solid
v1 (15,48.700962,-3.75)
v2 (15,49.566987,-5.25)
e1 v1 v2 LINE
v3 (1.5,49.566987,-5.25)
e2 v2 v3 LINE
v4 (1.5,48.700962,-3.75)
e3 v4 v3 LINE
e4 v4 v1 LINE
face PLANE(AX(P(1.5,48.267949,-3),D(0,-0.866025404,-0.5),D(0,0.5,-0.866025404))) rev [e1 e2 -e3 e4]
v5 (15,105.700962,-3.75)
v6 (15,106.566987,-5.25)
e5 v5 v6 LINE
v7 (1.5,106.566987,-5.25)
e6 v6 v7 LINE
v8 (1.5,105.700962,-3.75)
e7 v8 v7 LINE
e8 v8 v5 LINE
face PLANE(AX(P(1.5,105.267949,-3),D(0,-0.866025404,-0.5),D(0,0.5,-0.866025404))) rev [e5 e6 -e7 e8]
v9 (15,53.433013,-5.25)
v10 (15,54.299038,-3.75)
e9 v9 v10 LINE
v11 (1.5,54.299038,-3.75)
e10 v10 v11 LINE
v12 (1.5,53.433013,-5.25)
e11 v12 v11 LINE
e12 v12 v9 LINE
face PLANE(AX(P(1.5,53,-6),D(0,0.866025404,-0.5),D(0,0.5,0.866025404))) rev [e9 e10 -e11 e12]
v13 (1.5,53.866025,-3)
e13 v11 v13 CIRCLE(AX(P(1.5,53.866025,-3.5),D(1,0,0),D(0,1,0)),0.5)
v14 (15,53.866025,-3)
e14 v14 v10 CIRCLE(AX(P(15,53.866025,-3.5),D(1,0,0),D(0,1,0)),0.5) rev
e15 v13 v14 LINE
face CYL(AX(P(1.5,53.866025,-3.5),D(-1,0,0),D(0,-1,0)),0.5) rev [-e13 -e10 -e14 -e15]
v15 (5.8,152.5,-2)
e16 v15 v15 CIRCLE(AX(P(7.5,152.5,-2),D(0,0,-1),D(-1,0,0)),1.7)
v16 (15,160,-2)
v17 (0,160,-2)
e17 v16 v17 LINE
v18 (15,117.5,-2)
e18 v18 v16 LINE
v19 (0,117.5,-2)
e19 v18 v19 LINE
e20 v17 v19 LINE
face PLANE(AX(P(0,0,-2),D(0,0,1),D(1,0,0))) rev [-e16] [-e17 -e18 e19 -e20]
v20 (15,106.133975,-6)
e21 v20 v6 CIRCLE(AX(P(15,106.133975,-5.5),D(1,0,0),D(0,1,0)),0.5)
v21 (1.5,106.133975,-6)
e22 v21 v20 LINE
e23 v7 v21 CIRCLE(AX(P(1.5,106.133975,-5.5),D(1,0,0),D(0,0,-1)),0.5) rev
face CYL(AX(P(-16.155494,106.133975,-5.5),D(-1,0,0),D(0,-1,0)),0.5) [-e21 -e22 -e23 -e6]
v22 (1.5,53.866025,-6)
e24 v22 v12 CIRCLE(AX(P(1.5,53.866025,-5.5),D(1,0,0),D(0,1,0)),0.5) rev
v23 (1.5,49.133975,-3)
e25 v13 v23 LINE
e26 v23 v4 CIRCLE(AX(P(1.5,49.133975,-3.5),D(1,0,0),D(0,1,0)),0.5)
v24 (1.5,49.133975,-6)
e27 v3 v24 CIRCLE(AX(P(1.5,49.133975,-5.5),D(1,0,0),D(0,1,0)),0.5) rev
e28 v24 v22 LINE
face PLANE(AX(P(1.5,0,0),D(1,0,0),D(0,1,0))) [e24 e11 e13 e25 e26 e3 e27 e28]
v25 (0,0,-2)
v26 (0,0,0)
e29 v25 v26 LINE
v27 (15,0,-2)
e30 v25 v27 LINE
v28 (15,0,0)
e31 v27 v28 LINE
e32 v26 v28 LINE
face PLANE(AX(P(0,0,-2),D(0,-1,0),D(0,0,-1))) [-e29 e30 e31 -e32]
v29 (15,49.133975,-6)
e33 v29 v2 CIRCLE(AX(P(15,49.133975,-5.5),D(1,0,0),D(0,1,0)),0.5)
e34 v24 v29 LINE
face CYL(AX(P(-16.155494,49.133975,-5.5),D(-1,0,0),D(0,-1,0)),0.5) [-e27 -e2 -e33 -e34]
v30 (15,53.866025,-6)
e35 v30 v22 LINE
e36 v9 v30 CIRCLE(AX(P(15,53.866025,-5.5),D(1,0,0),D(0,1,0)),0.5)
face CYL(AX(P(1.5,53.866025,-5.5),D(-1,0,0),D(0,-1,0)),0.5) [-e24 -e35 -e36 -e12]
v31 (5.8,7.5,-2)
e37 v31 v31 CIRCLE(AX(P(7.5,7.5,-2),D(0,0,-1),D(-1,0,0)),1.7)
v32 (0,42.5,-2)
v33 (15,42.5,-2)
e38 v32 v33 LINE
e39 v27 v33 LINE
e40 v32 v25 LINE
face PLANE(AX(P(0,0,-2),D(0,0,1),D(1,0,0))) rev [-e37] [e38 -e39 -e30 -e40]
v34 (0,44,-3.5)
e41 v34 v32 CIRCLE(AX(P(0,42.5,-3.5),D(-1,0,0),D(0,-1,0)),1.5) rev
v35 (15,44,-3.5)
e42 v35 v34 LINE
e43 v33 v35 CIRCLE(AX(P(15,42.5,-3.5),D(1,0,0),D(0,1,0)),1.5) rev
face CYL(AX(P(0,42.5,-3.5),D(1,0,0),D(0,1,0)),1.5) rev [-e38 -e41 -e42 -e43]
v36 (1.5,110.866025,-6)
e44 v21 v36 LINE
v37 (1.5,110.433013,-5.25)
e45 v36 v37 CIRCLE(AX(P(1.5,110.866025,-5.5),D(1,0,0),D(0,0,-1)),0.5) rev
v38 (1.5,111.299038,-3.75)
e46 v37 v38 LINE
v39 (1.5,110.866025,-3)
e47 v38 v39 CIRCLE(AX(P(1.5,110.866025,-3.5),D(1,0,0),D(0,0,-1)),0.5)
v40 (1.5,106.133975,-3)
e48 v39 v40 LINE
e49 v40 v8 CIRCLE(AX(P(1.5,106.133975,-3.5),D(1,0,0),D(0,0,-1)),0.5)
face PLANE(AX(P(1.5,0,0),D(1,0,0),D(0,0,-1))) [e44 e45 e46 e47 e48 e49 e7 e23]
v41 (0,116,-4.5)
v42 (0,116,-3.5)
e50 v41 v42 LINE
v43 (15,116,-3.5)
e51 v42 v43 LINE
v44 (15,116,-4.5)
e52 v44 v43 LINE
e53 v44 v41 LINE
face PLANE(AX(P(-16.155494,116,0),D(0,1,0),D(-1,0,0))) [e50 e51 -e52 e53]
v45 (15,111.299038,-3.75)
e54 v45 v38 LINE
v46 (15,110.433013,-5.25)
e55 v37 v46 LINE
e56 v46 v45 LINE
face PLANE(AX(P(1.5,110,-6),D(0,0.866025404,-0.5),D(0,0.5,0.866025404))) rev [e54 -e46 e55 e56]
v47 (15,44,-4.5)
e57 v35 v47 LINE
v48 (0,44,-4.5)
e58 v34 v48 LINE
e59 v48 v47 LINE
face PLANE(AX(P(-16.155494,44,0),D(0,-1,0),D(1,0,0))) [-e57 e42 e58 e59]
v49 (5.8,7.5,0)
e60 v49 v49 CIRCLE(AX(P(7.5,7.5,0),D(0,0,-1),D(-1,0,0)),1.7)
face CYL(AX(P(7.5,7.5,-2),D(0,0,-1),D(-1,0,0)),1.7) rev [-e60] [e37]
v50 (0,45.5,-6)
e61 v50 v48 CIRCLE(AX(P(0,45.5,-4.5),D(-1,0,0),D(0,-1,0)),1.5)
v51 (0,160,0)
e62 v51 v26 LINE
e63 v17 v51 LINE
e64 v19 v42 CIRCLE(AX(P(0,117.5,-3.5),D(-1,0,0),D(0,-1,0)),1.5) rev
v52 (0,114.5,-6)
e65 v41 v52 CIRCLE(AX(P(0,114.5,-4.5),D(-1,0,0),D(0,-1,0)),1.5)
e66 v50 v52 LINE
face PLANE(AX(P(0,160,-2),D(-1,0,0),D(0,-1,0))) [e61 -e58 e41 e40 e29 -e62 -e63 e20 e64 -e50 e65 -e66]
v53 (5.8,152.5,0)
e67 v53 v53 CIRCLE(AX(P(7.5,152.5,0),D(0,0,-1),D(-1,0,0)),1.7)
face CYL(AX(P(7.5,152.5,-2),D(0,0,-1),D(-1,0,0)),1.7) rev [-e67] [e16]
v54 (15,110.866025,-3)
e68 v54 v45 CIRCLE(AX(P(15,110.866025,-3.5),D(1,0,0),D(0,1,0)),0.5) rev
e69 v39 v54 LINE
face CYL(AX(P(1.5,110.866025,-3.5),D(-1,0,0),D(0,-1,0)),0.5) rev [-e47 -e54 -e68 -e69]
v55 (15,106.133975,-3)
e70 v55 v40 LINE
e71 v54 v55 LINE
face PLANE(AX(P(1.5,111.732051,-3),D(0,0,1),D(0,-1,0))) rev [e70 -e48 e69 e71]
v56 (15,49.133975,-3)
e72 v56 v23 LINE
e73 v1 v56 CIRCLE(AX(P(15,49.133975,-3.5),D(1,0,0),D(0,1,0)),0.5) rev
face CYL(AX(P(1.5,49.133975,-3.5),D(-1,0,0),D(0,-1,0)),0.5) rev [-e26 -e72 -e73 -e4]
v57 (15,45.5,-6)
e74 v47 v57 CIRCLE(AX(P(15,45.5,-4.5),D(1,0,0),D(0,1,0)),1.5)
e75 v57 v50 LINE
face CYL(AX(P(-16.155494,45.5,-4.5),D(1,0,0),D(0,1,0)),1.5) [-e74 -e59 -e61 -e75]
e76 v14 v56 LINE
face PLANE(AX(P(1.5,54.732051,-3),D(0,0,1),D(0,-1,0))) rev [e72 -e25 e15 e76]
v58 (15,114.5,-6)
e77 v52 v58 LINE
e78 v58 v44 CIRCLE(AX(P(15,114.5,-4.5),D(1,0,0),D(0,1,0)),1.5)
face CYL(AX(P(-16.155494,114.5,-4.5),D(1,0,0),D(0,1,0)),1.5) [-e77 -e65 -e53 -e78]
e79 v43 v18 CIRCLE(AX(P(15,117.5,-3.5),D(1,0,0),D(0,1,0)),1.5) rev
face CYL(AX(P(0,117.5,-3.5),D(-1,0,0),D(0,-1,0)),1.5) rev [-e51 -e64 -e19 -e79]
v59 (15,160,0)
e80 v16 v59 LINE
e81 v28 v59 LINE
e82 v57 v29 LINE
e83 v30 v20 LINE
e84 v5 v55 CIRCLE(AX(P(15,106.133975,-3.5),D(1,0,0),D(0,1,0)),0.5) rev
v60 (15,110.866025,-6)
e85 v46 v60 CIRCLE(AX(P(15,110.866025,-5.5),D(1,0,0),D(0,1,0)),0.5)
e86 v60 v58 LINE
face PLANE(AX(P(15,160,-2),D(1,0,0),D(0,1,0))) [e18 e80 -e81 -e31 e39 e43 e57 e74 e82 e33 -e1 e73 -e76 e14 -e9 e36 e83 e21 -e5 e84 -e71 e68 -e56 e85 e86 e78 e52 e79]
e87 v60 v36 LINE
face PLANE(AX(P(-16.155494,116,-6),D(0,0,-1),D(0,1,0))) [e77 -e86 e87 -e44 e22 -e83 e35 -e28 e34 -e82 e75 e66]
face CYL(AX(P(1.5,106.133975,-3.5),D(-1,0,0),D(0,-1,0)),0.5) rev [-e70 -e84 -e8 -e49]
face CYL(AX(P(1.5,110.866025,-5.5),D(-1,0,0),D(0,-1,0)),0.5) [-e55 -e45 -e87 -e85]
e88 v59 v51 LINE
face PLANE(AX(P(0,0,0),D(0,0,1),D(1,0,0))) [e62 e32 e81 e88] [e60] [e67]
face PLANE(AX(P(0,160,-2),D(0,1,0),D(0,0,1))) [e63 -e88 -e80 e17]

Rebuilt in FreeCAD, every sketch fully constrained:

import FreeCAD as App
import Part
import Sketcher
from FreeCAD import Vector
Q = App.Units.Quantity


def edges_at(feature, points):
    """Names of the edges that pass closest to the given points."""
    edges = feature.Shape.Edges
    near = lambda p: min(range(len(edges)), key=lambda i: edges[i].distToShape(Part.Vertex(*p))[0])
    return sorted({f"Edge{near(p) + 1}" for p in points})

doc = App.newDocument("Part")
body = doc.addObject("PartDesign::Body", "Body")

# Sketch on XY plane
sketch1 = doc.addObject("Sketcher::SketchObject", "Sketch")
body.addObject(sketch1)
sketch1.AttachmentSupport = (doc.XY_Plane, [""])
sketch1.MapMode = "FlatFace"
sketch1.addGeometry(Part.LineSegment(Vector(0, 160, 0), Vector(0, 0, 0)), False)
sketch1.addGeometry(Part.LineSegment(Vector(0, 0, 0), Vector(15, 0, 0)), False)
sketch1.addGeometry(Part.LineSegment(Vector(15, 0, 0), Vector(15, 160, 0)), False)
sketch1.addGeometry(Part.LineSegment(Vector(15, 160, 0), Vector(0, 160, 0)), False)
sketch1.addConstraint(Sketcher.Constraint("Coincident", 0, 2, 1, 1))
sketch1.addConstraint(Sketcher.Constraint("Coincident", 1, 2, 2, 1))
sketch1.addConstraint(Sketcher.Constraint("Coincident", 2, 2, 3, 1))
sketch1.addConstraint(Sketcher.Constraint("Coincident", 3, 2, 0, 1))
sketch1.addConstraint(Sketcher.Constraint("Vertical", 0))
sketch1.addConstraint(Sketcher.Constraint("Horizontal", 1))
sketch1.addConstraint(Sketcher.Constraint("Vertical", 2))
sketch1.addConstraint(Sketcher.Constraint("Horizontal", 3))
sketch1.addConstraint(Sketcher.Constraint("Coincident", 0, 2, -1, 1))
sketch1.addConstraint(Sketcher.Constraint("DistanceX", 1, 1, 1, 2, 15.0))
sketch1.addConstraint(Sketcher.Constraint("DistanceY", 0, 2, 0, 1, 160.0))
pad1 = doc.addObject("PartDesign::Pad", "Pad")
body.addObject(pad1)
pad1.Profile = sketch1
pad1.Length = 2
pad1.Reversed = True

# Sketch on YZ plane
sketch2 = doc.addObject("Sketcher::SketchObject", "Sketch001")
body.addObject(sketch2)
sketch2.AttachmentSupport = (doc.YZ_Plane, [""])
sketch2.MapMode = "FlatFace"
sketch2.AttachmentOffset = App.Placement(Vector(0, 0, 15), App.Rotation())
sketch2.addGeometry(Part.LineSegment(Vector(116, 0, 0), Vector(101, 0, 0)), False)
sketch2.addGeometry(Part.LineSegment(Vector(101, 0, 0), Vector(101, -6, 0)), False)
sketch2.addGeometry(Part.LineSegment(Vector(101, -6, 0), Vector(116, -6, 0)), False)
sketch2.addGeometry(Part.LineSegment(Vector(116, -6, 0), Vector(116, 0, 0)), False)
sketch2.addGeometry(Part.LineSegment(Vector(59, 0, 0), Vector(44, 0, 0)), False)
sketch2.addGeometry(Part.LineSegment(Vector(44, 0, 0), Vector(44, -6, 0)), False)
sketch2.addGeometry(Part.LineSegment(Vector(44, -6, 0), Vector(59, -6, 0)), False)
sketch2.addGeometry(Part.LineSegment(Vector(59, -6, 0), Vector(59, 0, 0)), False)
sketch2.addConstraint(Sketcher.Constraint("Coincident", 0, 2, 1, 1))
sketch2.addConstraint(Sketcher.Constraint("Coincident", 1, 2, 2, 1))
sketch2.addConstraint(Sketcher.Constraint("Coincident", 2, 2, 3, 1))
sketch2.addConstraint(Sketcher.Constraint("Coincident", 3, 2, 0, 1))
sketch2.addConstraint(Sketcher.Constraint("Coincident", 4, 2, 5, 1))
sketch2.addConstraint(Sketcher.Constraint("Coincident", 5, 2, 6, 1))
sketch2.addConstraint(Sketcher.Constraint("Coincident", 6, 2, 7, 1))
sketch2.addConstraint(Sketcher.Constraint("Coincident", 7, 2, 4, 1))
sketch2.addConstraint(Sketcher.Constraint("Horizontal", 0))
sketch2.addConstraint(Sketcher.Constraint("Vertical", 1))
sketch2.addConstraint(Sketcher.Constraint("Horizontal", 2))
sketch2.addConstraint(Sketcher.Constraint("Vertical", 3))
sketch2.addConstraint(Sketcher.Constraint("Horizontal", 4))
sketch2.addConstraint(Sketcher.Constraint("Vertical", 5))
sketch2.addConstraint(Sketcher.Constraint("Horizontal", 6))
sketch2.addConstraint(Sketcher.Constraint("Vertical", 7))
sketch2.addConstraint(Sketcher.Constraint("PointOnObject", 0, 2, -1))
sketch2.addConstraint(Sketcher.Constraint("PointOnObject", 4, 2, -1))
sketch2.addConstraint(Sketcher.Constraint("Horizontal", 2, 2, 5, 2))
sketch2.addConstraint(Sketcher.Constraint("Equal", 2, 4))
sketch2.addConstraint(Sketcher.Constraint("DistanceX", 0, 2, 0, 1, 15.0))
sketch2.addConstraint(Sketcher.Constraint("DistanceY", 1, 2, 1, 1, 6.0))
sketch2.addConstraint(Sketcher.Constraint("DistanceX", -1, 1, 0, 2, 101.0))
sketch2.addConstraint(Sketcher.Constraint("DistanceX", -1, 1, 4, 2, 44.0))
pad2 = doc.addObject("PartDesign::Pad", "Pad001")
body.addObject(pad2)
pad2.Profile = sketch2
pad2.Length = 15
pad2.Reversed = True
doc.recompute()

fillet = doc.addObject("PartDesign::Fillet", "Fillet")
body.addObject(fillet)
fillet.Base = (pad2, edges_at(pad2, [
    (7.5, 101, -6),
    (7.5, 101, -2),
    (7.5, 116, -6),
    (7.5, 116, -2),
    (7.5, 44, -6),
    (7.5, 44, -2),
    (7.5, 59, -6),
    (7.5, 59, -2),
]))
fillet.Radius = 1.5

# Sketch on XY plane
sketch3 = doc.addObject("Sketcher::SketchObject", "Sketch002")
body.addObject(sketch3)
sketch3.AttachmentSupport = (doc.XY_Plane, [""])
sketch3.MapMode = "FlatFace"
sketch3.AttachmentOffset = App.Placement(Vector(0, 0, -2), App.Rotation())
sketch3.addGeometry(Part.Circle(Vector(7.5, 152.5, 0), Vector(0, 0, 1), 1.7), False)
sketch3.addGeometry(Part.Circle(Vector(7.5, 7.5, 0), Vector(0, 0, 1), 1.7), False)
sketch3.addConstraint(Sketcher.Constraint("Equal", 0, 1))
sketch3.addConstraint(Sketcher.Constraint("Vertical", 0, 3, 1, 3))
sketch3.addConstraint(Sketcher.Constraint("Diameter", 0, 3.4))
sketch3.addConstraint(Sketcher.Constraint("DistanceY", 1, 3, 0, 3, 145.0))
sketch3.addConstraint(Sketcher.Constraint("DistanceX", -1, 1, 0, 3, 7.5))
sketch3.addConstraint(Sketcher.Constraint("DistanceY", -1, 1, 0, 3, 152.5))
doc.recompute()
hole = doc.addObject("PartDesign::Hole", "Hole")
body.addObject(hole)
hole.Profile = sketch3
hole.ThreadType = "None"
hole.Diameter = 3.4
hole.DepthType = "ThroughAll"
hole.Reversed = True

# Sketch on YZ plane
sketch4 = doc.addObject("Sketcher::SketchObject", "Sketch003")
body.addObject(sketch4)
sketch4.AttachmentSupport = (doc.YZ_Plane, [""])
sketch4.MapMode = "FlatFace"
sketch4.AttachmentOffset = App.Placement(Vector(0, 0, 15), App.Rotation())
sketch4.addGeometry(Part.LineSegment(Vector(110, -6, 0), Vector(111.7, -3, 0)), False)
sketch4.addGeometry(Part.LineSegment(Vector(111.7, -3, 0), Vector(105.3, -3, 0)), False)
sketch4.addGeometry(Part.LineSegment(Vector(105.3, -3, 0), Vector(107, -6, 0)), False)
sketch4.addGeometry(Part.LineSegment(Vector(107, -6, 0), Vector(110, -6, 0)), False)
sketch4.addGeometry(Part.LineSegment(Vector(53, -6, 0), Vector(54.7, -3, 0)), False)
sketch4.addGeometry(Part.LineSegment(Vector(54.7, -3, 0), Vector(48.3, -3, 0)), False)
sketch4.addGeometry(Part.LineSegment(Vector(48.3, -3, 0), Vector(50, -6, 0)), False)
sketch4.addGeometry(Part.LineSegment(Vector(50, -6, 0), Vector(53, -6, 0)), False)
sketch4.addConstraint(Sketcher.Constraint("Coincident", 0, 2, 1, 1))
sketch4.addConstraint(Sketcher.Constraint("Coincident", 1, 2, 2, 1))
sketch4.addConstraint(Sketcher.Constraint("Coincident", 2, 2, 3, 1))
sketch4.addConstraint(Sketcher.Constraint("Coincident", 3, 2, 0, 1))
sketch4.addConstraint(Sketcher.Constraint("Coincident", 4, 2, 5, 1))
sketch4.addConstraint(Sketcher.Constraint("Coincident", 5, 2, 6, 1))
sketch4.addConstraint(Sketcher.Constraint("Coincident", 6, 2, 7, 1))
sketch4.addConstraint(Sketcher.Constraint("Coincident", 7, 2, 4, 1))
sketch4.addConstraint(Sketcher.Constraint("Horizontal", 1))
sketch4.addConstraint(Sketcher.Constraint("Horizontal", 3))
sketch4.addConstraint(Sketcher.Constraint("Horizontal", 5))
sketch4.addConstraint(Sketcher.Constraint("Horizontal", 7))
sketch4.addConstraint(Sketcher.Constraint("Parallel", 0, 4))
sketch4.addConstraint(Sketcher.Constraint("Parallel", 2, 6))
sketch4.addConstraint(Sketcher.Constraint("Horizontal", 1, 2, 4, 2))
sketch4.addConstraint(Sketcher.Constraint("Horizontal", 3, 2, 6, 2))
sketch4.addConstraint(Sketcher.Constraint("Equal", 1, 5))
sketch4.addConstraint(Sketcher.Constraint("Equal", 0, 2))
sketch4.addConstraint(Sketcher.Constraint("DistanceX", 3, 1, 3, 2, 3.0))
sketch4.addConstraint(Sketcher.Constraint("Angle", 0, Q("60 deg")))
sketch4.addConstraint(Sketcher.Constraint("DistanceY", 0, 2, -1, 1, 3.0))
sketch4.addConstraint(Sketcher.Constraint("DistanceX", -1, 1, 2, 2, 107.0))
sketch4.addConstraint(Sketcher.Constraint("DistanceY", 2, 2, -1, 1, 6.0))
sketch4.addConstraint(Sketcher.Constraint("DistanceX", -1, 1, 6, 2, 50.0))
pocket1 = doc.addObject("PartDesign::Pocket", "Pocket")
body.addObject(pocket1)
pocket1.Profile = sketch4
pocket1.Length = 13.5
doc.recompute()

fillet2 = doc.addObject("PartDesign::Fillet", "Fillet001")
body.addObject(fillet2)
fillet2.Base = (pocket1, edges_at(pocket1, [
    (8.25, 110, -6),
    (8.25, 107, -6),
    (8.25, 105.268, -3),
    (8.25, 111.732, -3),
    (8.25, 53, -6),
    (8.25, 50, -6),
    (8.25, 48.268, -3),
    (8.25, 54.732, -3),
]))
fillet2.Radius = 0.5

# Sketch on YZ plane
sketch5 = doc.addObject("Sketcher::SketchObject", "Sketch004")
body.addObject(sketch5)
sketch5.AttachmentSupport = (doc.YZ_Plane, [""])
sketch5.MapMode = "FlatFace"
sketch5.AttachmentOffset = App.Placement(Vector(0, 0, 15), App.Rotation())
sketch5.addGeometry(Part.LineSegment(Vector(102, 0, 0), Vector(58, 0, 0)), False)
sketch5.addGeometry(Part.LineSegment(Vector(58, 0, 0), Vector(58, -6, 0)), False)
sketch5.addGeometry(Part.LineSegment(Vector(58, -6, 0), Vector(102, -6, 0)), False)
sketch5.addGeometry(Part.LineSegment(Vector(102, -6, 0), Vector(102, 0, 0)), False)
sketch5.addConstraint(Sketcher.Constraint("Coincident", 0, 2, 1, 1))
sketch5.addConstraint(Sketcher.Constraint("Coincident", 1, 2, 2, 1))
sketch5.addConstraint(Sketcher.Constraint("Coincident", 2, 2, 3, 1))
sketch5.addConstraint(Sketcher.Constraint("Coincident", 3, 2, 0, 1))
sketch5.addConstraint(Sketcher.Constraint("Horizontal", 0))
sketch5.addConstraint(Sketcher.Constraint("Vertical", 1))
sketch5.addConstraint(Sketcher.Constraint("Horizontal", 2))
sketch5.addConstraint(Sketcher.Constraint("Vertical", 3))
sketch5.addConstraint(Sketcher.Constraint("PointOnObject", 0, 2, -1))
sketch5.addConstraint(Sketcher.Constraint("DistanceX", 0, 2, 0, 1, 45.0))
sketch5.addConstraint(Sketcher.Constraint("DistanceY", 1, 2, 1, 1, 6.0))
sketch5.addConstraint(Sketcher.Constraint("DistanceX", -1, 1, 0, 2, 57.5))
pad3 = doc.addObject("PartDesign::Pad", "Pad002")
body.addObject(pad3)
pad3.Profile = sketch5
pad3.Length = 15
pad3.Reversed = True

doc.recompute()
